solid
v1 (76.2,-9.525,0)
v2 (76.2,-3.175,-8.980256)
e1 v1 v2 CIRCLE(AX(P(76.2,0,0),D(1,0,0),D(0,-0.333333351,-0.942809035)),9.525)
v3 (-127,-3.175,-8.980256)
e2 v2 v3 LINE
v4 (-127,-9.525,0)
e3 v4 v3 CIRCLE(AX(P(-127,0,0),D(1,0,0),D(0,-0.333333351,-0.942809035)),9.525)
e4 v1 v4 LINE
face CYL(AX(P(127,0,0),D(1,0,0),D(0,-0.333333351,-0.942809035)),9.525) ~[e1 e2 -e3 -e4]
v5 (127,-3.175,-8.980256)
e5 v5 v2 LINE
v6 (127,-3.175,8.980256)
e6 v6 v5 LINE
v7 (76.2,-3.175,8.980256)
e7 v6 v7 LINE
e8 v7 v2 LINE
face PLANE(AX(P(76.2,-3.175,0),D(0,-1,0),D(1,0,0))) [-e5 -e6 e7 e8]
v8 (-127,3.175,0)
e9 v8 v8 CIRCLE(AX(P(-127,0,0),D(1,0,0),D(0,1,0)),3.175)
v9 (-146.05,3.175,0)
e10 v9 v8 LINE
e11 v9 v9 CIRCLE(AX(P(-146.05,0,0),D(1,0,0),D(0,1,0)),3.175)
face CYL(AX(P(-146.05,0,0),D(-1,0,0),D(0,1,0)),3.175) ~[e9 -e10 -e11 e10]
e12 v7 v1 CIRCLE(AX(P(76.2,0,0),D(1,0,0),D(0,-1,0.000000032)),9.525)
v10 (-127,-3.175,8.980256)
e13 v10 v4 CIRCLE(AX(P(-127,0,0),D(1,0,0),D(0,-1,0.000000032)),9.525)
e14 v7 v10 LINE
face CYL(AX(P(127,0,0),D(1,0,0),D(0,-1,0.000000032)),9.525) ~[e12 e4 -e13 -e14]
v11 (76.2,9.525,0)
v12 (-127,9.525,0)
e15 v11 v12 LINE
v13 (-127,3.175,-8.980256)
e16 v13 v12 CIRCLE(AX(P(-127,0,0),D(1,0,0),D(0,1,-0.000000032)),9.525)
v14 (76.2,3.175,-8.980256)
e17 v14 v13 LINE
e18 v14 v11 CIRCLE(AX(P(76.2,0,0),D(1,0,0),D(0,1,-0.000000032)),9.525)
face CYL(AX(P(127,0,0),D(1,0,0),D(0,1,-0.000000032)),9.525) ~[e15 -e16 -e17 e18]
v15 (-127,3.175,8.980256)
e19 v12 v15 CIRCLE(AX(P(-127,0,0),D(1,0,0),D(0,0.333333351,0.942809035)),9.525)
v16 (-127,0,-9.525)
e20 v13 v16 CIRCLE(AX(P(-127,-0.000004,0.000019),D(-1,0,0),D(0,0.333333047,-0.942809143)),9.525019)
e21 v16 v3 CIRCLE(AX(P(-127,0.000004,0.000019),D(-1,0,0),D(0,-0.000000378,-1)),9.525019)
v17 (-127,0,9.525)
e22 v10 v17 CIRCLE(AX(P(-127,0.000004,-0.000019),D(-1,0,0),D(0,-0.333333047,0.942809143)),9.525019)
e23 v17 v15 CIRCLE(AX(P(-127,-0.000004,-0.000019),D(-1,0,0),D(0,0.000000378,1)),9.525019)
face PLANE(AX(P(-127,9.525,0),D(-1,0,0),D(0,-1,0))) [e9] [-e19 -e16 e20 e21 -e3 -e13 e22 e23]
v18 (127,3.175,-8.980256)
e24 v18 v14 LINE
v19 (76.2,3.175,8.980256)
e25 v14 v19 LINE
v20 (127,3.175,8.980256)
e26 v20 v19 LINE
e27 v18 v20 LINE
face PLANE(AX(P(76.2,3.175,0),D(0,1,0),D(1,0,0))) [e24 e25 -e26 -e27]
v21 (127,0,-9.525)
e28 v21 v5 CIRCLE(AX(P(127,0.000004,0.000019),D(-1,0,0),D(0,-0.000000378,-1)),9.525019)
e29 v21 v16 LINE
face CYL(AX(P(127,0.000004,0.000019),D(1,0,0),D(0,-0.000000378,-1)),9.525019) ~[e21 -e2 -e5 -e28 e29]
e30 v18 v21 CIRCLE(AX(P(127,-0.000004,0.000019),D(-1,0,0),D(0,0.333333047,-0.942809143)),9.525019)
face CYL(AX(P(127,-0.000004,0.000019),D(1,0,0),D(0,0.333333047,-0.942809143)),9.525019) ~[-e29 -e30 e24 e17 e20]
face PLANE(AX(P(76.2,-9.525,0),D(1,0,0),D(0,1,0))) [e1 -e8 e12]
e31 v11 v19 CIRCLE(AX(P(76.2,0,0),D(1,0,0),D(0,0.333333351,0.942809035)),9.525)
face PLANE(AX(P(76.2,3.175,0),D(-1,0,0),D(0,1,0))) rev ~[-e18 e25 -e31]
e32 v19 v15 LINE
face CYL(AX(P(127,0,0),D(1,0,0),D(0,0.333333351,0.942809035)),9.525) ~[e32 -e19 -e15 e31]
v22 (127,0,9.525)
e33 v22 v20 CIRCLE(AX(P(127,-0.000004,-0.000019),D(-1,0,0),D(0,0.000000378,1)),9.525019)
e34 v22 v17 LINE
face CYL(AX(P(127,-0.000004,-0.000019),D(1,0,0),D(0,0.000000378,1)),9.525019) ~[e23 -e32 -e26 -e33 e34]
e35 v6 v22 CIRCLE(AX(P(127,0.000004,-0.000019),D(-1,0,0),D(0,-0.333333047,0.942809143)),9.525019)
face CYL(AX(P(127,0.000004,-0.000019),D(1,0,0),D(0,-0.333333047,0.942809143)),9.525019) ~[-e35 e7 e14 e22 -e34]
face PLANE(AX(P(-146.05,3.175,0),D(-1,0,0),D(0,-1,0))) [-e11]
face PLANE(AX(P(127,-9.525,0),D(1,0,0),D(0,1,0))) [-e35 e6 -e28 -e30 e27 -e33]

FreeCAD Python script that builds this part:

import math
import FreeCAD as App
import Part
import Sketcher
from FreeCAD import Vector
Q = App.Units.Quantity

doc = App.newDocument("Part")
body = doc.addObject("PartDesign::Body", "Body")

sketch1 = body.newObject("Sketcher::SketchObject", "Sketch")
sketch1.AttachmentSupport = (doc.getObject("XY_Plane"), [""])
sketch1.MapMode = "FlatFace"
sketch1.addGeometry(Part.LineSegment(Vector(127, 10, 0), Vector(-127, 10, 0)), False)
sketch1.addGeometry(Part.LineSegment(Vector(-127, 10, 0), Vector(-127, 3, 0)), False)
sketch1.addGeometry(Part.LineSegment(Vector(-127, 3, 0), Vector(-146, 3, 0)), False)
sketch1.addGeometry(Part.LineSegment(Vector(-146, 3, 0), Vector(-146, -3, 0)), False)
sketch1.addGeometry(Part.LineSegment(Vector(-146, -3, 0), Vector(-127, -3, 0)), False)
sketch1.addGeometry(Part.LineSegment(Vector(-127, -3, 0), Vector(-127, -10, 0)), False)
sketch1.addGeometry(Part.LineSegment(Vector(-127, -10, 0), Vector(127, -10, 0)), False)
sketch1.addGeometry(Part.LineSegment(Vector(127, -10, 0), Vector(127, 10, 0)), False)
sketch1.addConstraint(Sketcher.Constraint("Coincident", 0, 2, 1, 1))
sketch1.addConstraint(Sketcher.Constraint("Coincident", 1, 2, 2, 1))
sketch1.addConstraint(Sketcher.Constraint("Coincident", 2, 2, 3, 1))
sketch1.addConstraint(Sketcher.Constraint("Coincident", 3, 2, 4, 1))
sketch1.addConstraint(Sketcher.Constraint("Coincident", 4, 2, 5, 1))
sketch1.addConstraint(Sketcher.Constraint("Coincident", 5, 2, 6, 1))
sketch1.addConstraint(Sketcher.Constraint("Coincident", 6, 2, 7, 1))
sketch1.addConstraint(Sketcher.Constraint("Coincident", 7, 2, 0, 1))
sketch1.addConstraint(Sketcher.Constraint("Horizontal", 0))
sketch1.addConstraint(Sketcher.Constraint("Vertical", 1))
sketch1.addConstraint(Sketcher.Constraint("Horizontal", 2))
sketch1.addConstraint(Sketcher.Constraint("Vertical", 3))
sketch1.addConstraint(Sketcher.Constraint("Horizontal", 4))
sketch1.addConstraint(Sketcher.Constraint("Vertical", 5))
sketch1.addConstraint(Sketcher.Constraint("Horizontal", 6))
sketch1.addConstraint(Sketcher.Constraint("Vertical", 7))
sketch1.addConstraint(Sketcher.Constraint("Symmetric", 0, 2, 6, 2, -1, 1))
sketch1.addConstraint(Sketcher.Constraint("Symmetric", 1, 2, 4, 2, -1))
sketch1.addConstraint(Sketcher.Constraint("Equal", 1, 3))
sketch1.addConstraint(Sketcher.Constraint("Equal", 4, 7))
sketch1.addConstraint(Sketcher.Constraint("DistanceX", 0, 2, 0, 1, Q("10 in")))
sketch1.addConstraint(Sketcher.Constraint("DistanceX", 2, 2, 2, 1, Q("0.75 in")))
pad1 = body.newObject("PartDesign::Pad", "Pad")
pad1.Profile = sketch1
pad1.Length = Q("0.75 in")
pad1.Midplane = True

sketch2 = body.newObject("Sketcher::SketchObject", "Sketch001")
sketch2.AttachmentSupport = (doc.getObject("XY_Plane"), [""])
sketch2.MapMode = "FlatFace"
sketch2.addGeometry(Part.LineSegment(Vector(76, 10, 0), Vector(76, 3, 0)), False)
sketch2.addGeometry(Part.LineSegment(Vector(76, 3, 0), Vector(127, 3, 0)), False)
sketch2.addGeometry(Part.LineSegment(Vector(127, 3, 0), Vector(127, 10, 0)), False)
sketch2.addGeometry(Part.LineSegment(Vector(127, 10, 0), Vector(76, 10, 0)), False)
sketch2.addGeometry(Part.LineSegment(Vector(76, -3, 0), Vector(76, -10, 0)), False)
sketch2.addGeometry(Part.LineSegment(Vector(76, -10, 0), Vector(127, -10, 0)), False)
sketch2.addGeometry(Part.LineSegment(Vector(127, -10, 0), Vector(127, -3, 0)), False)
sketch2.addGeometry(Part.LineSegment(Vector(127, -3, 0), Vector(76, -3, 0)), False)
sketch2.addConstraint(Sketcher.Constraint("Coincident", 0, 2, 1, 1))
sketch2.addConstraint(Sketcher.Constraint("Coincident", 1, 2, 2, 1))
sketch2.addConstraint(Sketcher.Constraint("Coincident", 2, 2, 3, 1))
sketch2.addConstraint(Sketcher.Constraint("Coincident", 3, 2, 0, 1))
sketch2.addConstraint(Sketcher.Constraint("Coincident", 4, 2, 5, 1))
sketch2.addConstraint(Sketcher.Constraint("Coincident", 5, 2, 6, 1))
sketch2.addConstraint(Sketcher.Constraint("Coincident", 6, 2, 7, 1))
sketch2.addConstraint(Sketcher.Constraint("Coincident", 7, 2, 4, 1))
sketch2.addConstraint(Sketcher.Constraint("Vertical", 0))
sketch2.addConstraint(Sketcher.Constraint("Horizontal", 1))
sketch2.addConstraint(Sketcher.Constraint("Vertical", 2))
sketch2.addConstraint(Sketcher.Constraint("Horizontal", 3))
sketch2.addConstraint(Sketcher.Constraint("Vertical", 4))
sketch2.addConstraint(Sketcher.Constraint("Horizontal", 5))
sketch2.addConstraint(Sketcher.Constraint("Vertical", 6))
sketch2.addConstraint(Sketcher.Constraint("Horizontal", 7))
sketch2.addConstraint(Sketcher.Constraint("Symmetric", 3, 2, 4, 2, -1))
sketch2.addConstraint(Sketcher.Constraint("Symmetric", 1, 2, 6, 2, -1))
sketch2.addConstraint(Sketcher.Constraint("DistanceX", 1, 1, 1, 2, Q("2 in")))
sketch2.addConstraint(Sketcher.Constraint("DistanceX", -1, 1, 0, 2, Q("3 in")))
sketch2.addConstraint(Sketcher.Constraint("DistanceY", 0, 2, 0, 1, Q("0.25 in")))
sketch2.addConstraint(Sketcher.Constraint("DistanceY", 4, 2, 0, 2, Q("0.5 in")))
pocket1 = body.newObject("PartDesign::Pocket", "Pocket")
pocket1.Profile = sketch2
pocket1.Length = Q("1 in")
pocket1.Midplane = True

sketch3 = body.newObject("Sketcher::SketchObject", "Sketch002")
sketch3.AttachmentSupport = (doc.getObject("YZ_Plane"), [""])
sketch3.MapMode = "FlatFace"
sketch3.AttachmentOffset = App.Placement(Vector(0, 0, 5 * 25.4), App.Rotation())
sketch3.addGeometry(Part.ArcOfCircle(Part.Circle(Vector(0, 0, 0), Vector(0, 0, 1), 9.5), math.radians(109), math.radians(180)), False)
sketch3.addGeometry(Part.ArcOfCircle(Part.Circle(Vector(0, 0, 0), Vector(0, 0, 1), 9.5), math.radians(90), math.radians(109.47)), False)
sketch3.addGeometry(Part.LineSegment(Vector(0, 9.5, 0), Vector(-9.5, 9.5, 0)), False)
sketch3.addGeometry(Part.LineSegment(Vector(-9.5, 9.5, 0), Vector(-9.5, 0, 0)), False)
sketch3.addGeometry(Part.ArcOfCircle(Part.Circle(Vector(0, 0, 0), Vector(0, 0, 1), 9.5), math.radians(-180), math.radians(-109)), False)
sketch3.addGeometry(Part.LineSegment(Vector(-9.5, 0, 0), Vector(-9.5, -9.5, 0)), False)
sketch3.addGeometry(Part.LineSegment(Vector(-9.5, -9.5, 0), Vector(0, -9.5, 0)), False)
sketch3.addGeometry(Part.ArcOfCircle(Part.Circle(Vector(0, 0, 0), Vector(0, 0, 1), 9.5), math.radians(-109.47), math.radians(-90)), False)
sketch3.addGeometry(Part.LineSegment(Vector(9.5, -9.5, 0), Vector(9.5, 0, 0)), False)
sketch3.addGeometry(Part.ArcOfCircle(Part.Circle(Vector(0, 0, 0), Vector(0, 0, 1), 9.5), math.radians(-71), math.radians(0)), False)
sketch3.addGeometry(Part.ArcOfCircle(Part.Circle(Vector(0, 0, 0), Vector(0, 0, 1), 9.5), math.radians(-90), math.radians(-70.53)), False)
sketch3.addGeometry(Part.LineSegment(Vector(0, -9.5, 0), Vector(9.5, -9.5, 0)), False)
sketch3.addGeometry(Part.ArcOfCircle(Part.Circle(Vector(0, 0, 0), Vector(0, 0, 1), 9.5), math.radians(0), math.radians(71)), False)
sketch3.addGeometry(Part.LineSegment(Vector(9.5, 0, 0), Vector(9.5, 9.5, 0)), False)
sketch3.addGeometry(Part.LineSegment(Vector(9.5, 9.5, 0), Vector(0, 9.5, 0)), False)
sketch3.addGeometry(Part.ArcOfCircle(Part.Circle(Vector(0, 0, 0), Vector(0, 0, 1), 9.5), math.radians(70.53), math.radians(90)), False)
sketch3.addConstraint(Sketcher.Constraint("Tangent", 0, 1, 1, 2))
sketch3.addConstraint(Sketcher.Constraint("Tangent", 1, 1, 2, 1))
sketch3.addConstraint(Sketcher.Constraint("Coincident", 2, 2, 3, 1))
sketch3.addConstraint(Sketcher.Constraint("Tangent", 3, 2, 0, 2))
sketch3.addConstraint(Sketcher.Constraint("Tangent", 4, 1, 5, 1))
sketch3.addConstraint(Sketcher.Constraint("Coincident", 5, 2, 6, 1))
sketch3.addConstraint(Sketcher.Constraint("Tangent", 6, 2, 7, 2))
sketch3.addConstraint(Sketcher.Constraint("Tangent", 7, 1, 4, 2))
sketch3.addConstraint(Sketcher.Constraint("Tangent", 8, 2, 9, 2))
sketch3.addConstraint(Sketcher.Constraint("Tangent", 9, 1, 10, 2))
sketch3.addConstraint(Sketcher.Constraint("Tangent", 10, 1, 11, 1))
sketch3.addConstraint(Sketcher.Constraint("Coincident", 11, 2, 8, 1))
sketch3.addConstraint(Sketcher.Constraint("Tangent", 12, 1, 13, 1))
sketch3.addConstraint(Sketcher.Constraint("Coincident", 13, 2, 14, 1))
sketch3.addConstraint(Sketcher.Constraint("Tangent", 14, 2, 15, 2))
sketch3.addConstraint(Sketcher.Constraint("Tangent", 15, 1, 12, 2))
sketch3.addConstraint(Sketcher.Constraint("Horizontal", 2))
sketch3.addConstraint(Sketcher.Constraint("Vertical", 3))
sketch3.addConstraint(Sketcher.Constraint("Vertical", 5))
sketch3.addConstraint(Sketcher.Constraint("Horizontal", 6))
sketch3.addConstraint(Sketcher.Constraint("Vertical", 8))
sketch3.addConstraint(Sketcher.Constraint("Horizontal", 11))
sketch3.addConstraint(Sketcher.Constraint("Vertical", 13))
sketch3.addConstraint(Sketcher.Constraint("Horizontal", 14))
sketch3.addConstraint(Sketcher.Constraint("Coincident", 0, 3, -1, 1))
sketch3.addConstraint(Sketcher.Constraint("Coincident", 4, 3, -1, 1))
sketch3.addConstraint(Sketcher.Constraint("Coincident", 9, 3, -1, 1))
sketch3.addConstraint(Sketcher.Constraint("Coincident", 12, 3, -1, 1))
sketch3.addConstraint(Sketcher.Constraint("Coincident", 10, 3, 7, 3))
sketch3.addConstraint(Sketcher.Constraint("Coincident", 15, 3, 1, 3))
sketch3.addConstraint(Sketcher.Constraint("Equal", 0, 4))
sketch3.addConstraint(Sketcher.Constraint("Equal", 4, 9))
sketch3.addConstraint(Sketcher.Constraint("Equal", 9, 12))
sketch3.addConstraint(Sketcher.Constraint("Horizontal", 7, 1, 9, 1))
sketch3.addConstraint(Sketcher.Constraint("Horizontal", 0, 1, 15, 1))
sketch3.addConstraint(Sketcher.Constraint("Vertical", 0, 1, 7, 1))
sketch3.addConstraint(Sketcher.Constraint("Radius", 0, Q("0.375 in")))
sketch3.addConstraint(Sketcher.Constraint("DistanceX", 7, 1, 11, 2, Q("0.5 in")))
pocket2 = body.newObject("PartDesign::Pocket", "Pocket001")
pocket2.Profile = sketch3
pocket2.Type = "ThroughAll"

sketch4 = body.newObject("Sketcher::SketchObject", "Sketch003")
sketch4.AttachmentSupport = (doc.getObject("YZ_Plane"), [""])
sketch4.MapMode = "FlatFace"
sketch4.AttachmentOffset = App.Placement(Vector(0, 0, -5.75 * 25.4), App.Rotation())
sketch4.addGeometry(Part.ArcOfCircle(Part.Circle(Vector(0, 0, 0), Vector(0, 0, 1), 3.2), math.radians(0), math.radians(180)), False)
sketch4.addGeometry(Part.LineSegment(Vector(-3.2, 0, 0), Vector(-3.2, 9, 0)), False)
sketch4.addGeometry(Part.ArcOfCircle(Part.Circle(Vector(0, 0, 0), Vector(0, 0, 1), 9.5), math.radians(90), math.radians(109.47)), False)
sketch4.addGeometry(Part.ArcOfCircle(Part.Circle(Vector(0, 0, 0), Vector(0, 0, 1), 9.5), math.radians(70.53), math.radians(90)), False)
sketch4.addGeometry(Part.LineSegment(Vector(3.2, 9, 0), Vector(3.2, 0, 0)), False)
sketch4.addConstraint(Sketcher.Constraint("Tangent", 0, 2, 1, 1))
sketch4.addConstraint(Sketcher.Constraint("Coincident", 1, 2, 2, 2))
sketch4.addConstraint(Sketcher.Constraint("Tangent", 2, 1, 3, 2))
sketch4.addConstraint(Sketcher.Constraint("Coincident", 3, 1, 4, 1))
sketch4.addConstraint(Sketcher.Constraint("Tangent", 4, 2, 0, 1))
sketch4.addConstraint(Sketcher.Constraint("Vertical", 1))
sketch4.addConstraint(Sketcher.Constraint("Vertical", 4))
sketch4.addConstraint(Sketcher.Constraint("Coincident", 0, 3, -1, 1))
sketch4.addConstraint(Sketcher.Constraint("Equal", 2, 3))
sketch4.addConstraint(Sketcher.Constraint("PointOnObject", 2, 1, -2))
sketch4.addConstraint(Sketcher.Constraint("Horizontal", 1, 2, 3, 1))
sketch4.addConstraint(Sketcher.Constraint("Radius", 0, Q("0.125 in")))
sketch4.addConstraint(Sketcher.Constraint("DistanceY", -1, 1, 2, 1, Q("0.375 in")))
sketch4.addConstraint(Sketcher.Constraint("Radius", 2, Q("9.525019 mm")))
pocket3 = body.newObject("PartDesign::Pocket", "Pocket002")
pocket3.Profile = sketch4
pocket3.Length = Q("0.75 in")
pocket3.Reversed = True

sketch5 = body.newObject("Sketcher::SketchObject", "Sketch004")
sketch5.AttachmentSupport = (doc.getObject("YZ_Plane"), [""])
sketch5.MapMode = "FlatFace"
sketch5.AttachmentOffset = App.Placement(Vector(0, 0, -5.75 * 25.4), App.Rotation())
sketch5.addGeometry(Part.LineSegment(Vector(-3.2, -9, 0), Vector(-3.2, 0, 0)), False)
sketch5.addGeometry(Part.ArcOfCircle(Part.Circle(Vector(0, 0, 0), Vector(0, 0, 1), 3.2), math.radians(180), math.radians(360)), False)
sketch5.addGeometry(Part.LineSegment(Vector(3.2, 0, 0), Vector(3.2, -9, 0)), False)
sketch5.addGeometry(Part.ArcOfCircle(Part.Circle(Vector(0, 0, 0), Vector(0, 0, 1), 9.5), math.radians(-90), math.radians(-70.53)), False)
sketch5.addGeometry(Part.ArcOfCircle(Part.Circle(Vector(0, 0, 0), Vector(0, 0, 1), 9.5), math.radians(-109.47), math.radians(-90)), False)
sketch5.addConstraint(Sketcher.Constraint("Tangent", 0, 2, 1, 1))
sketch5.addConstraint(Sketcher.Constraint("Tangent", 1, 2, 2, 1))
sketch5.addConstraint(Sketcher.Constraint("Coincident", 2, 2, 3, 2))
sketch5.addConstraint(Sketcher.Constraint("Tangent", 3, 1, 4, 2))
sketch5.addConstraint(Sketcher.Constraint("Coincident", 4, 1, 0, 1))
sketch5.addConstraint(Sketcher.Constraint("Vertical", 0))
sketch5.addConstraint(Sketcher.Constraint("Vertical", 2))
sketch5.addConstraint(Sketcher.Constraint("Coincident", 1, 3, -1, 1))
sketch5.addConstraint(Sketcher.Constraint("Equal", 3, 4))
sketch5.addConstraint(Sketcher.Constraint("PointOnObject", 3, 1, -2))
sketch5.addConstraint(Sketcher.Constraint("Horizontal", 2, 2, 4, 1))
sketch5.addConstraint(Sketcher.Constraint("Radius", 1, Q("0.125 in")))
sketch5.addConstraint(Sketcher.Constraint("DistanceY", 3, 1, -1, 1, Q("0.375 in")))
sketch5.addConstraint(Sketcher.Constraint("Radius", 3, Q("9.525019 mm")))
pocket4 = body.newObject("PartDesign::Pocket", "Pocket003")
pocket4.Profile = sketch5
pocket4.Length = Q("0.75 in")
pocket4.Reversed = True

doc.recompute()
